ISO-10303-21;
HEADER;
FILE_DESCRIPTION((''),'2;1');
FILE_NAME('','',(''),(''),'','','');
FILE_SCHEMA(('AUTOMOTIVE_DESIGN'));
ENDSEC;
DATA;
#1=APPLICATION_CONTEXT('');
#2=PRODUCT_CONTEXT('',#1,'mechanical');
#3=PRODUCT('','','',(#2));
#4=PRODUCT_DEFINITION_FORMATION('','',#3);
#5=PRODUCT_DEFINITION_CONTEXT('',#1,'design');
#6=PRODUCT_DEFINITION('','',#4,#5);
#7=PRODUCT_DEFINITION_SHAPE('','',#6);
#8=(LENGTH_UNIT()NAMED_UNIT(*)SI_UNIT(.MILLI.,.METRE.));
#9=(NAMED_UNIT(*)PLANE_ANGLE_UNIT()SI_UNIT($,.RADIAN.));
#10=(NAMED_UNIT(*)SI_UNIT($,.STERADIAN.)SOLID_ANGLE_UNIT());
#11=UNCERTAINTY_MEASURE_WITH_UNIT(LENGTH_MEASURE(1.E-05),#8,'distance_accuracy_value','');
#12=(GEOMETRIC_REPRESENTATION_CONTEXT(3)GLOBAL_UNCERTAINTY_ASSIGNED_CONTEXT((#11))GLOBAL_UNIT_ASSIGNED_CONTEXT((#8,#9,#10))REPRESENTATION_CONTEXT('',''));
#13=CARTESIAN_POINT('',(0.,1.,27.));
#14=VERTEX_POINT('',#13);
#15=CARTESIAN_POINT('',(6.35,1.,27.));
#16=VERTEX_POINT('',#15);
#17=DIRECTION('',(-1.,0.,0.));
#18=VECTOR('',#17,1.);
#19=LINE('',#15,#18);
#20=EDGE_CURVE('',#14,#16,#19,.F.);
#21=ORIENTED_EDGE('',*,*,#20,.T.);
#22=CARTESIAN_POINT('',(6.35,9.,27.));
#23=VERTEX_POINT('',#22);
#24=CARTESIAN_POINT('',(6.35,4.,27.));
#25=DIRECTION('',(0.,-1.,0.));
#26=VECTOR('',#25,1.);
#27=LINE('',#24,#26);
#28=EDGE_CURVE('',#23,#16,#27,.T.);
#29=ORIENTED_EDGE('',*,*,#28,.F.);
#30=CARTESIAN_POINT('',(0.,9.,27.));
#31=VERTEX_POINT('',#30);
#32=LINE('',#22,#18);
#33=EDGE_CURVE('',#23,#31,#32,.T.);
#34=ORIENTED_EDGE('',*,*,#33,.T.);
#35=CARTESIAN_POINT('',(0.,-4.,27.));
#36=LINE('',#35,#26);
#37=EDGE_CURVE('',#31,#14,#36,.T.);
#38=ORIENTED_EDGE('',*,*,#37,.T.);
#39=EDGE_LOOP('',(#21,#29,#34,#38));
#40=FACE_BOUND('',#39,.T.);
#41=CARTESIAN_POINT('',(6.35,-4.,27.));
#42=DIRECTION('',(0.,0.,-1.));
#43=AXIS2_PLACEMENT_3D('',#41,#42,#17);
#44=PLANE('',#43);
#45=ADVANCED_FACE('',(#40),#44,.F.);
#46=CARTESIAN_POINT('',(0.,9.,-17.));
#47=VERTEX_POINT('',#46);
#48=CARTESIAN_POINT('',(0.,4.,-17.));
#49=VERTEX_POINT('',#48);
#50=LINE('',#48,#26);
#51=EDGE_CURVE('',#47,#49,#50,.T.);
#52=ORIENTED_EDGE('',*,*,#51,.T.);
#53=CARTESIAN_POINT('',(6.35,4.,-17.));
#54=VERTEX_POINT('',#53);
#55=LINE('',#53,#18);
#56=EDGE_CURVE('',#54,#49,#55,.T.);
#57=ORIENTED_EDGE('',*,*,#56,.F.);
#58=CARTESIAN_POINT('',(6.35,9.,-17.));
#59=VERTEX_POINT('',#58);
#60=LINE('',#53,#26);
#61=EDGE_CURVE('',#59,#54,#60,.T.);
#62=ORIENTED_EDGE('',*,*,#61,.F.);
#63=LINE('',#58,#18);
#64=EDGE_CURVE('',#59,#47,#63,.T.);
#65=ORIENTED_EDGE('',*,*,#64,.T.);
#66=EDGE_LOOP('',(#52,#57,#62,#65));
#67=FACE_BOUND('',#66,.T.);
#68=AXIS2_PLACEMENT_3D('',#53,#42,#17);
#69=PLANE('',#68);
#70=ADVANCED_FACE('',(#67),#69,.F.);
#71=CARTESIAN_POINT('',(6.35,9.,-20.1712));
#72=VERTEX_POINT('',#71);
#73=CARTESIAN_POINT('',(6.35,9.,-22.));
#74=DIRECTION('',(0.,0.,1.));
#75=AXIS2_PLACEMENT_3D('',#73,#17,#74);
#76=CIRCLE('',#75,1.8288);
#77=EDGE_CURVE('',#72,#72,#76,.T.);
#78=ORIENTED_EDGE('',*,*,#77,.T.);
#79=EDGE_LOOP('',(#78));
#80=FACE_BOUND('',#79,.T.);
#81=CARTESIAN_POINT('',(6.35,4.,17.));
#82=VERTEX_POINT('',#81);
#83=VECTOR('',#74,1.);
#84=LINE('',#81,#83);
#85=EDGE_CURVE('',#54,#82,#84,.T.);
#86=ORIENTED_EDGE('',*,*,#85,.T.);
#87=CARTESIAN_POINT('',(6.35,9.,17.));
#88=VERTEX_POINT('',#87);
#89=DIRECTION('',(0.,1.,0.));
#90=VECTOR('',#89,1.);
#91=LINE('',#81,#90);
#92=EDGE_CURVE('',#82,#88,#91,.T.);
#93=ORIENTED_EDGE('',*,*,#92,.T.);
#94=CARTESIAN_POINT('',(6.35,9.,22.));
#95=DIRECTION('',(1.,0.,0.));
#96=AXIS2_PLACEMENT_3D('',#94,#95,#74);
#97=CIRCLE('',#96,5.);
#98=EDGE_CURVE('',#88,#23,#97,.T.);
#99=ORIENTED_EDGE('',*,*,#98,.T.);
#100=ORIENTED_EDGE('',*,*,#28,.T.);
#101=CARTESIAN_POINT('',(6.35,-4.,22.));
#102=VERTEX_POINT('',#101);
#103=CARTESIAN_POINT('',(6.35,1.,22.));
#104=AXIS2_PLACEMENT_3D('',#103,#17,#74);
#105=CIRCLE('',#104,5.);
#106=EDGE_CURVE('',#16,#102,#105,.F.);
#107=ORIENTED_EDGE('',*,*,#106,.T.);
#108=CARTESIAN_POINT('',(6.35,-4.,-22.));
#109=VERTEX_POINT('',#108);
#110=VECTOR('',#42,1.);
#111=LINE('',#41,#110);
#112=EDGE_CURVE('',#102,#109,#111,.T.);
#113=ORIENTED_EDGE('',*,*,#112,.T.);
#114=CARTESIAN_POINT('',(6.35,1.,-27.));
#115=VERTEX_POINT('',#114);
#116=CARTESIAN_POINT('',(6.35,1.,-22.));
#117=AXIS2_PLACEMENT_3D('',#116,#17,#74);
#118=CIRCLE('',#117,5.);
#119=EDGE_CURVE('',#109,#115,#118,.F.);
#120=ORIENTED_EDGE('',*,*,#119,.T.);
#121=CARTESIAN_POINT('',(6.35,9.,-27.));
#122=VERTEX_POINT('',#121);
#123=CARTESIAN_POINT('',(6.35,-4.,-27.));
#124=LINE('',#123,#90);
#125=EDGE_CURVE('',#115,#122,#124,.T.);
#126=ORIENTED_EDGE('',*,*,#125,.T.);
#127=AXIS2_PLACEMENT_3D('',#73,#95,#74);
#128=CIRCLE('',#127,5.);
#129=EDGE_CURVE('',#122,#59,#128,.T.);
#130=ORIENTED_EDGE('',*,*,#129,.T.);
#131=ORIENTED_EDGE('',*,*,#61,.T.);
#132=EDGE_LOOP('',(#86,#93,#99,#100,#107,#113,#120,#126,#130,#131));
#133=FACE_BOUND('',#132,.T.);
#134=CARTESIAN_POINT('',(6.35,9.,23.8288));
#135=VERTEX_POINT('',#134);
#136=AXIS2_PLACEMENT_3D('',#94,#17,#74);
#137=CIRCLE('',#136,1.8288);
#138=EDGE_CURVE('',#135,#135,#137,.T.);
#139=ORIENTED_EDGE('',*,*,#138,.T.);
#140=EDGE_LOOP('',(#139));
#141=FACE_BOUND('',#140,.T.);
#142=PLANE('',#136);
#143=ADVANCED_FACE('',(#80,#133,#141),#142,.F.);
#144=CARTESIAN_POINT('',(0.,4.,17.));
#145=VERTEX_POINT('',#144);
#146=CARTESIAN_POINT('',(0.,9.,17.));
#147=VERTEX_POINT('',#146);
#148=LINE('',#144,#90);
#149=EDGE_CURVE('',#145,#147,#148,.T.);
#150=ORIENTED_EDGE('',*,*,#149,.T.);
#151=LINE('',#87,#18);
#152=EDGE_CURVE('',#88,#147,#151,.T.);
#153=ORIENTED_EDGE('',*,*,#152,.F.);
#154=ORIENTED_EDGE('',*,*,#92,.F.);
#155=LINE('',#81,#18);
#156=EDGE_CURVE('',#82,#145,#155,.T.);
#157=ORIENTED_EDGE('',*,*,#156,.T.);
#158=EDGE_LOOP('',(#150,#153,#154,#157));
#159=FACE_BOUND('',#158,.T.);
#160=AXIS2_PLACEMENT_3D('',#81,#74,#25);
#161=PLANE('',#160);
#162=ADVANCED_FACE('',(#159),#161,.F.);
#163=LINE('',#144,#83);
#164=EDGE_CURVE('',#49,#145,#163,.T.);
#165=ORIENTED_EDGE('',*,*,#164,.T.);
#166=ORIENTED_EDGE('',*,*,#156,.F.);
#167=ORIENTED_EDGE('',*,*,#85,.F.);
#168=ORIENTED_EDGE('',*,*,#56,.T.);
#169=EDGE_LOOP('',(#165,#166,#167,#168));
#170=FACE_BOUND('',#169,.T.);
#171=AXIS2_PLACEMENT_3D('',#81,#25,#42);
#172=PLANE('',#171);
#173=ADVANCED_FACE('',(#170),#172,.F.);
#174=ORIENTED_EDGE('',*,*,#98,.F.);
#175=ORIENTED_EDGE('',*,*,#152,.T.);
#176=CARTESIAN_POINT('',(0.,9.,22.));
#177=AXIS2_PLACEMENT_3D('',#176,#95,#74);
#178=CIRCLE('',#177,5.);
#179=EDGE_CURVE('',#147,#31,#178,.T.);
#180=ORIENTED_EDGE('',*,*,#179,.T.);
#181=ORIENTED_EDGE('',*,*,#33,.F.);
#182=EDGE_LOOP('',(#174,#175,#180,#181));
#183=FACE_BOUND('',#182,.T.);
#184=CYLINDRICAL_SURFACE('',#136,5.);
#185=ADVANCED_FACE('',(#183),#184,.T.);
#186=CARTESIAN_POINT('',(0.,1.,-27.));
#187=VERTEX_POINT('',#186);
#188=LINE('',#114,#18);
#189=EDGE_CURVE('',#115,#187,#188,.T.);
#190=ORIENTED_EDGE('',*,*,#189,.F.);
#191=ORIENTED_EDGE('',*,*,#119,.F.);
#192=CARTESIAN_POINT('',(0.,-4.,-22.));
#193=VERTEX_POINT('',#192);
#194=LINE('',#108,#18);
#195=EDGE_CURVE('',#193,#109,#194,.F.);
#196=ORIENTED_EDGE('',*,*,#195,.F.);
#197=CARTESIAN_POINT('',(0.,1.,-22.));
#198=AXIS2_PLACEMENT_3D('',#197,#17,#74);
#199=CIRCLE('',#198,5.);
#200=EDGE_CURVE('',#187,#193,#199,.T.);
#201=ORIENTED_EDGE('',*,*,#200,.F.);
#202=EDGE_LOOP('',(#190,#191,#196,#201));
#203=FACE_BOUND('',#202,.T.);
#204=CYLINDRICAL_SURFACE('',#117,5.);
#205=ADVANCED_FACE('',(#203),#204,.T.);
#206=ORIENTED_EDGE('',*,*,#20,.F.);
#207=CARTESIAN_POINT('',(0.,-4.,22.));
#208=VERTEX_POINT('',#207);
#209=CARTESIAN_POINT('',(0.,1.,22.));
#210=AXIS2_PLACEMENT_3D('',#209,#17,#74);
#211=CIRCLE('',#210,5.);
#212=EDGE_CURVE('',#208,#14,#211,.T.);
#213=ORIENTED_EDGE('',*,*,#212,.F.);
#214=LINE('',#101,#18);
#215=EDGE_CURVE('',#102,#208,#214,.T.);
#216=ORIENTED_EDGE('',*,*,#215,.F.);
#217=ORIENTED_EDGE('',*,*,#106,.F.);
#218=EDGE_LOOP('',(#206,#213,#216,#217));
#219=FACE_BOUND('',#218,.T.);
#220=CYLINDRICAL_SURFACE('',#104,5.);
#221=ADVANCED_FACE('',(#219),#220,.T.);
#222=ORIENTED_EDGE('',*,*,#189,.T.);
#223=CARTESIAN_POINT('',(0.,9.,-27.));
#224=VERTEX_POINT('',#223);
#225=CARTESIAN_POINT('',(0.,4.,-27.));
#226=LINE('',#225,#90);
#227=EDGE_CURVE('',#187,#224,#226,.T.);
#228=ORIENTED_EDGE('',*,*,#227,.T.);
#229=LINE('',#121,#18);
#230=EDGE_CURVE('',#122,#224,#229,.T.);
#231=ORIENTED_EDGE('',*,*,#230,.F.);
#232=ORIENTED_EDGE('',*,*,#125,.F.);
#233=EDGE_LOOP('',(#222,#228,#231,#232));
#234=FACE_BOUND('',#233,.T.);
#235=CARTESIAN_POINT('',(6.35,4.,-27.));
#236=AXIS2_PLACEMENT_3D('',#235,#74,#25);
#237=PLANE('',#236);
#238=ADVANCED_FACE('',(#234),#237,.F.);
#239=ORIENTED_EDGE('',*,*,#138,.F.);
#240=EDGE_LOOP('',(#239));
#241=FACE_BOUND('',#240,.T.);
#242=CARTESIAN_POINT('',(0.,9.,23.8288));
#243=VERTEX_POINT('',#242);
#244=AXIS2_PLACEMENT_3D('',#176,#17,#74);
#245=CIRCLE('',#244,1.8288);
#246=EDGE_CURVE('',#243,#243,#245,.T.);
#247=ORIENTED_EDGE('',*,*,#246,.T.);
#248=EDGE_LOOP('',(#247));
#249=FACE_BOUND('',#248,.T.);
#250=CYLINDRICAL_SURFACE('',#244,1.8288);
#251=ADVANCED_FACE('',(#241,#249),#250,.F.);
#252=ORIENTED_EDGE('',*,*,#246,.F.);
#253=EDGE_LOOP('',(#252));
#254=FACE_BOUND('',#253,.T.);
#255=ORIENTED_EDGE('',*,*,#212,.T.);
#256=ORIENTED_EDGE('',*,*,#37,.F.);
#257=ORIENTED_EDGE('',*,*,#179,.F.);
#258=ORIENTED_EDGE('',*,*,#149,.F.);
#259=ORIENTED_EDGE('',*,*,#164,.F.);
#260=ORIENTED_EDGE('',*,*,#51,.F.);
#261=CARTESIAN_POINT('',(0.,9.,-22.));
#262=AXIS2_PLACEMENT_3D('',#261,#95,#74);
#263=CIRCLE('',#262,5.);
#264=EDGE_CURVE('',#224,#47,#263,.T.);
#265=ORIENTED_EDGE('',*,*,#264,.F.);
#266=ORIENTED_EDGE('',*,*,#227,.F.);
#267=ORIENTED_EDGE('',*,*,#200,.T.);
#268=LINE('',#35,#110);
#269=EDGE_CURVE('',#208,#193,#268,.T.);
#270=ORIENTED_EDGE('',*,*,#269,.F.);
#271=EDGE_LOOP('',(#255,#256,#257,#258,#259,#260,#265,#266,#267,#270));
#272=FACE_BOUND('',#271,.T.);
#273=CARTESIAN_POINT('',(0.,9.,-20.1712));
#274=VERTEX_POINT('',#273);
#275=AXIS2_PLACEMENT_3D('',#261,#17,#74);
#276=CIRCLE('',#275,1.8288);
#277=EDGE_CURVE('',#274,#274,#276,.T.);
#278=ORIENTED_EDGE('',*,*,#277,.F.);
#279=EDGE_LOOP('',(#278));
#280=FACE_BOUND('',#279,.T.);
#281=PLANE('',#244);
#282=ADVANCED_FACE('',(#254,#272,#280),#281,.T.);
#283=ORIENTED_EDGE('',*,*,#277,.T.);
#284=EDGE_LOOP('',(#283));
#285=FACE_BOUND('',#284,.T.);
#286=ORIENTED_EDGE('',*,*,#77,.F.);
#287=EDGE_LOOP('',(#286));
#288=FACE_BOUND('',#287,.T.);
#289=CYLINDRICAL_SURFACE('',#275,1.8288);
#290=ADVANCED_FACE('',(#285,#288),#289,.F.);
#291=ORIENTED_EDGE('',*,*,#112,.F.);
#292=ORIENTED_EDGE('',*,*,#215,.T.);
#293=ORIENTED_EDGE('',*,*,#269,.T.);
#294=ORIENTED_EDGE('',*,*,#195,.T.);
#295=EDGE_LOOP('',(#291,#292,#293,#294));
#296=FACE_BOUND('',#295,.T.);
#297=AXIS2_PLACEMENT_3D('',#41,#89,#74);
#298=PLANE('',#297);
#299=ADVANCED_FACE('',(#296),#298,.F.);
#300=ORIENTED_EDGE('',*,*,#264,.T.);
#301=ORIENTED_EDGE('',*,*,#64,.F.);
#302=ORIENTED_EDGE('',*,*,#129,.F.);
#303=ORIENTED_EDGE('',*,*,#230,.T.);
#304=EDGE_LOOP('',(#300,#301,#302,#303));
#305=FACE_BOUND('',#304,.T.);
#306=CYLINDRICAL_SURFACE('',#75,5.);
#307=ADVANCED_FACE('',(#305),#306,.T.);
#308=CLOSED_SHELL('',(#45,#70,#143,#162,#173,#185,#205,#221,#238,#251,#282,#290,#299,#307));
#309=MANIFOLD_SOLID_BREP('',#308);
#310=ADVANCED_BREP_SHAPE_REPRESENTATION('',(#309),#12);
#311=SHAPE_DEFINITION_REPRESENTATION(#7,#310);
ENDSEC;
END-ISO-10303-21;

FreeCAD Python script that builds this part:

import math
import FreeCAD as App
import Part
import Sketcher
Q = App.Units.Quantity


def edges_at(feature, points):
    """Names of the edges that pass closest to the given points."""
    edges = feature.Shape.Edges
    near = lambda p: min(range(len(edges)), key=lambda i: edges[i].distToShape(Part.Vertex(*p))[0])
    return sorted({f"Edge{near(p) + 1}" for p in points})

doc = App.newDocument("Part")
params = doc.addObject("Spreadsheet::Sheet", "Params")
for row, (alias, value) in enumerate([
    ("sketch1_radius", "5 mm"),
    ("sketch1_width", "13 mm"),
    ("sketch1_width2", "5 mm"),
    ("sketch1_height", "54 mm"),
    ("pad1_length", "6.35 mm"),
    ("fillet_radius", "5 mm"),
    ("hole_diameter", "3.6576 mm"),
], start=1):
    params.set(f"A{row}", alias)
    params.set(f"B{row}", "=" + value)
    params.setAlias(f"B{row}", alias)

body = doc.addObject("PartDesign::Body", "Body")

# Sketch on YZ plane
sketch1 = body.newObject("Sketcher::SketchObject", "Sketch")
sketch1.AttachmentSupport = (doc.getObject("YZ_Plane"), [""])
sketch1.MapMode = "FlatFace"
sketch1.addGeometry([
    Part.LineSegment(App.Vector(9, 27, 0), App.Vector(-4, 27, 0)),  # 0
    Part.LineSegment(App.Vector(-4, 27, 0), App.Vector(-4, -27, 0)),  # 1
    Part.LineSegment(App.Vector(-4, -27, 0), App.Vector(9, -27, 0)),  # 2
    Part.ArcOfCircle(Part.Circle(App.Vector(9, -22, 0), App.Vector(0, 0, 1), 5), math.radians(-90), math.radians(90)),  # 3
    Part.LineSegment(App.Vector(9, -17, 0), App.Vector(4, -17, 0)),  # 4
    Part.LineSegment(App.Vector(4, -17, 0), App.Vector(4, 17, 0)),  # 5
    Part.LineSegment(App.Vector(4, 17, 0), App.Vector(9, 17, 0)),  # 6
    Part.ArcOfCircle(Part.Circle(App.Vector(9, 22, 0), App.Vector(0, 0, 1), 5), math.radians(-90), math.radians(90)),  # 7
], False)
sketch1.addConstraint([
    Sketcher.Constraint("Coincident", 0, 2, 1, 1),
    Sketcher.Constraint("Coincident", 1, 2, 2, 1),
    Sketcher.Constraint("Tangent", 2, 2, 3, 1),
    Sketcher.Constraint("Tangent", 3, 2, 4, 1),
    Sketcher.Constraint("Coincident", 4, 2, 5, 1),
    Sketcher.Constraint("Coincident", 5, 2, 6, 1),
    Sketcher.Constraint("Tangent", 6, 2, 7, 1),
    Sketcher.Constraint("Tangent", 7, 2, 0, 1),
    Sketcher.Constraint("Horizontal", 0),
    Sketcher.Constraint("Vertical", 1),
    Sketcher.Constraint("Horizontal", 2),
    Sketcher.Constraint("Horizontal", 4),
    Sketcher.Constraint("Vertical", 5),
    Sketcher.Constraint("Horizontal", 6),
    Sketcher.Constraint("Equal", 3, 7),
    Sketcher.Constraint("Symmetric", 3, 3, 7, 3, -1),
    Sketcher.Constraint("Radius", 3, Q("5 mm")),
    Sketcher.Constraint("DistanceX", 0, 2, 0, 1, Q("13 mm")),
    Sketcher.Constraint("DistanceX", 4, 2, 4, 1, Q("5 mm")),
    Sketcher.Constraint("DistanceY", 1, 2, 1, 1, Q("54 mm")),
    Sketcher.Constraint("DistanceX", -1, 1, 3, 3, Q("9 mm")),
])
sketch1.setExpression("Constraints[16]", "Params.sketch1_radius")
sketch1.setExpression("Constraints[17]", "Params.sketch1_width")
sketch1.setExpression("Constraints[18]", "Params.sketch1_width2")
sketch1.setExpression("Constraints[19]", "Params.sketch1_height")
pad1 = body.newObject("PartDesign::Pad", "Pad")
pad1.Profile = sketch1
pad1.setExpression("Length", "Params.pad1_length")
doc.recompute()

fillet = body.newObject("PartDesign::Fillet", "Fillet")
fillet.Base = (pad1, edges_at(pad1, [(3.175, -4, -27), (3.175, -4, 27)]))
fillet.setExpression("Radius", "Params.fillet_radius")

# Sketch on YZ plane
sketch2 = body.newObject("Sketcher::SketchObject", "Sketch001")
sketch2.AttachmentSupport = (doc.getObject("YZ_Plane"), [""])
sketch2.MapMode = "FlatFace"
sketch2.addGeometry([
    Part.Circle(App.Vector(9, -22, 0), App.Vector(0, 0, 1), 1.8),
    Part.Circle(App.Vector(9, 22, 0), App.Vector(0, 0, 1), 1.8),
], False)
sketch2.addConstraint([
    Sketcher.Constraint("Equal", 0, 1),
    Sketcher.Constraint("Symmetric", 0, 3, 1, 3, -1),
    Sketcher.Constraint("DistanceX", -1, 1, 0, 3, Q("9 mm")),
    Sketcher.Constraint("DistanceY", 0, 3, -1, 1, Q("22 mm")),
    Sketcher.Constraint("Diameter", 0, Q("3.6576 mm")),
])
doc.recompute()
hole = body.newObject("PartDesign::Hole", "Hole")
hole.Profile = sketch2
hole.ThreadType = "None"
hole.setExpression("Diameter", "Params.hole_diameter")
hole.DepthType = "ThroughAll"
hole.Reversed = True

doc.recompute()
